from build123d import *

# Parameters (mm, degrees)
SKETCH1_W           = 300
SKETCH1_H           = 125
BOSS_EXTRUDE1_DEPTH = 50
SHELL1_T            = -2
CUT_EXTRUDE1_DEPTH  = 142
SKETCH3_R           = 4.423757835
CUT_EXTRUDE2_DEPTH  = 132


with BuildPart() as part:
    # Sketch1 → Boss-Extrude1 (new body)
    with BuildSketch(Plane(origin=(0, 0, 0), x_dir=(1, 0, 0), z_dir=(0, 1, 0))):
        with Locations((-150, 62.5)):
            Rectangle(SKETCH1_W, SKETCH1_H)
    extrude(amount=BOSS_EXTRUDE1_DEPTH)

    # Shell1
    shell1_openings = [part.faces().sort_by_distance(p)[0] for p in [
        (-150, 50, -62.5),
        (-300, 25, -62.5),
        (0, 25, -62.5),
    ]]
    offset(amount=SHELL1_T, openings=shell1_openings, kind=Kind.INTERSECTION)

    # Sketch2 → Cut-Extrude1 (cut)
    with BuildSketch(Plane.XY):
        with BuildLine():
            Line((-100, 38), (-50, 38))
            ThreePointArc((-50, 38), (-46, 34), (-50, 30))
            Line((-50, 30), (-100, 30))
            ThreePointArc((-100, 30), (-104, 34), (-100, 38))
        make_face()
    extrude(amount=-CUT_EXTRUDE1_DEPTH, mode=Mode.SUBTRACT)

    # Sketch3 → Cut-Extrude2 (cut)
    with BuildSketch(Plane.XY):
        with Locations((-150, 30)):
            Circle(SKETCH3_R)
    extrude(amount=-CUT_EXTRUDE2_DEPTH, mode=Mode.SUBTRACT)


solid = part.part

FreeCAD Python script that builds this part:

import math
import FreeCAD as App
import Part
import Sketcher
Q = App.Units.Quantity


def faces_at(feature, points):
    """Names of the faces that lie closest to the given points."""
    faces = feature.Shape.Faces
    near = lambda p: min(range(len(faces)), key=lambda i: faces[i].distToShape(Part.Vertex(*p))[0])
    return sorted({f"Face{near(p) + 1}" for p in points})


def add_polygon(sketch, points):
    """Adds a closed chain of lines whose ends are joined by coincident constraints."""
    first, n = sketch.GeometryCount, len(points)
    for a, b in zip(points, points[1:] + points[:1]):
        sketch.addGeometry(Part.LineSegment(App.Vector(*a, 0), App.Vector(*b, 0)), False)
    for i in range(n):
        sketch.addConstraint(Sketcher.Constraint("Coincident", first + i, 2, first + (i + 1) % n, 1))

doc = App.newDocument("Part")
body = doc.addObject("PartDesign::Body", "Body")

sketch1 = body.newObject("Sketcher::SketchObject", "Sketch")
sketch1.AttachmentSupport = (doc.getObject("XZ_Plane"), [""])
sketch1.MapMode = "FlatFace"
add_polygon(sketch1, [(-300, -125), (-300, 0), (0, 0), (0, -125)])
sketch1.addConstraint([
    Sketcher.Constraint("Vertical", 0),
    Sketcher.Constraint("Horizontal", 1),
    Sketcher.Constraint("Vertical", 2),
    Sketcher.Constraint("Horizontal", 3),
    Sketcher.Constraint("Coincident", 1, 2, -1, 1),
    Sketcher.Constraint("DistanceX", 1, 1, 1, 2, Q("300 mm")),
    Sketcher.Constraint("DistanceY", 0, 1, 0, 2, Q("125 mm")),
])
pad1 = body.newObject("PartDesign::Pad", "Pad")
pad1.Profile = sketch1
pad1.Length = 50
pad1.Reversed = True
doc.recompute()

thickness = body.newObject("PartDesign::Thickness", "Thickness")
thickness.Base = (pad1, faces_at(pad1, [(-150, 50, -62.5), (-300, 25, -62.5), (0, 25, -62.5)]))
thickness.Value = 2
thickness.Reversed = True
thickness.Join = "Intersection"

sketch2 = body.newObject("Sketcher::SketchObject", "Sketch001")
sketch2.AttachmentSupport = (doc.getObject("XY_Plane"), [""])
sketch2.MapMode = "FlatFace"
sketch2.addGeometry([
    Part.LineSegment(App.Vector(-50, 38, 0), App.Vector(-100, 38, 0)),
    Part.ArcOfCircle(Part.Circle(App.Vector(-100, 34, 0), App.Vector(0, 0, 1), 4), math.radians(90), math.radians(270)),
    Part.LineSegment(App.Vector(-100, 30, 0), App.Vector(-50, 30, 0)),
    Part.ArcOfCircle(Part.Circle(App.Vector(-50, 34, 0), App.Vector(0, 0, 1), 4), math.radians(-90), math.radians(90)),
], False)
sketch2.addConstraint([
    Sketcher.Constraint("Tangent", 0, 2, 1, 1),
    Sketcher.Constraint("Tangent", 1, 2, 2, 1),
    Sketcher.Constraint("Tangent", 2, 2, 3, 1),
    Sketcher.Constraint("Tangent", 3, 2, 0, 1),
    Sketcher.Constraint("Horizontal", 0),
    Sketcher.Constraint("Horizontal", 2),
    Sketcher.Constraint("Radius", 1, Q("4 mm")),
    Sketcher.Constraint("DistanceX", 0, 2, 0, 1, Q("50 mm")),
    Sketcher.Constraint("DistanceX", 1, 3, -1, 1, Q("100 mm")),
    Sketcher.Constraint("DistanceY", -1, 1, 1, 3, Q("34 mm")),
])
pocket1 = body.newObject("PartDesign::Pocket", "Pocket")
pocket1.Profile = sketch2
pocket1.Length = 142

sketch3 = body.newObject("Sketcher::SketchObject", "Sketch002")
sketch3.AttachmentSupport = (doc.getObject("XY_Plane"), [""])
sketch3.MapMode = "FlatFace"
sketch3.addGeometry(Part.Circle(App.Vector(-150, 30, 0), App.Vector(0, 0, 1), 4.4), False)
sketch3.addConstraint([
    Sketcher.Constraint("DistanceX", 0, 3, -1, 1, Q("150 mm")),
    Sketcher.Constraint("DistanceY", -1, 1, 0, 3, Q("30 mm")),
    Sketcher.Constraint("Diameter", 0, Q("8.847516 mm")),
])
pocket2 = body.newObject("PartDesign::Pocket", "Pocket001")
pocket2.Profile = sketch3
pocket2.Length = 132

doc.recompute()
